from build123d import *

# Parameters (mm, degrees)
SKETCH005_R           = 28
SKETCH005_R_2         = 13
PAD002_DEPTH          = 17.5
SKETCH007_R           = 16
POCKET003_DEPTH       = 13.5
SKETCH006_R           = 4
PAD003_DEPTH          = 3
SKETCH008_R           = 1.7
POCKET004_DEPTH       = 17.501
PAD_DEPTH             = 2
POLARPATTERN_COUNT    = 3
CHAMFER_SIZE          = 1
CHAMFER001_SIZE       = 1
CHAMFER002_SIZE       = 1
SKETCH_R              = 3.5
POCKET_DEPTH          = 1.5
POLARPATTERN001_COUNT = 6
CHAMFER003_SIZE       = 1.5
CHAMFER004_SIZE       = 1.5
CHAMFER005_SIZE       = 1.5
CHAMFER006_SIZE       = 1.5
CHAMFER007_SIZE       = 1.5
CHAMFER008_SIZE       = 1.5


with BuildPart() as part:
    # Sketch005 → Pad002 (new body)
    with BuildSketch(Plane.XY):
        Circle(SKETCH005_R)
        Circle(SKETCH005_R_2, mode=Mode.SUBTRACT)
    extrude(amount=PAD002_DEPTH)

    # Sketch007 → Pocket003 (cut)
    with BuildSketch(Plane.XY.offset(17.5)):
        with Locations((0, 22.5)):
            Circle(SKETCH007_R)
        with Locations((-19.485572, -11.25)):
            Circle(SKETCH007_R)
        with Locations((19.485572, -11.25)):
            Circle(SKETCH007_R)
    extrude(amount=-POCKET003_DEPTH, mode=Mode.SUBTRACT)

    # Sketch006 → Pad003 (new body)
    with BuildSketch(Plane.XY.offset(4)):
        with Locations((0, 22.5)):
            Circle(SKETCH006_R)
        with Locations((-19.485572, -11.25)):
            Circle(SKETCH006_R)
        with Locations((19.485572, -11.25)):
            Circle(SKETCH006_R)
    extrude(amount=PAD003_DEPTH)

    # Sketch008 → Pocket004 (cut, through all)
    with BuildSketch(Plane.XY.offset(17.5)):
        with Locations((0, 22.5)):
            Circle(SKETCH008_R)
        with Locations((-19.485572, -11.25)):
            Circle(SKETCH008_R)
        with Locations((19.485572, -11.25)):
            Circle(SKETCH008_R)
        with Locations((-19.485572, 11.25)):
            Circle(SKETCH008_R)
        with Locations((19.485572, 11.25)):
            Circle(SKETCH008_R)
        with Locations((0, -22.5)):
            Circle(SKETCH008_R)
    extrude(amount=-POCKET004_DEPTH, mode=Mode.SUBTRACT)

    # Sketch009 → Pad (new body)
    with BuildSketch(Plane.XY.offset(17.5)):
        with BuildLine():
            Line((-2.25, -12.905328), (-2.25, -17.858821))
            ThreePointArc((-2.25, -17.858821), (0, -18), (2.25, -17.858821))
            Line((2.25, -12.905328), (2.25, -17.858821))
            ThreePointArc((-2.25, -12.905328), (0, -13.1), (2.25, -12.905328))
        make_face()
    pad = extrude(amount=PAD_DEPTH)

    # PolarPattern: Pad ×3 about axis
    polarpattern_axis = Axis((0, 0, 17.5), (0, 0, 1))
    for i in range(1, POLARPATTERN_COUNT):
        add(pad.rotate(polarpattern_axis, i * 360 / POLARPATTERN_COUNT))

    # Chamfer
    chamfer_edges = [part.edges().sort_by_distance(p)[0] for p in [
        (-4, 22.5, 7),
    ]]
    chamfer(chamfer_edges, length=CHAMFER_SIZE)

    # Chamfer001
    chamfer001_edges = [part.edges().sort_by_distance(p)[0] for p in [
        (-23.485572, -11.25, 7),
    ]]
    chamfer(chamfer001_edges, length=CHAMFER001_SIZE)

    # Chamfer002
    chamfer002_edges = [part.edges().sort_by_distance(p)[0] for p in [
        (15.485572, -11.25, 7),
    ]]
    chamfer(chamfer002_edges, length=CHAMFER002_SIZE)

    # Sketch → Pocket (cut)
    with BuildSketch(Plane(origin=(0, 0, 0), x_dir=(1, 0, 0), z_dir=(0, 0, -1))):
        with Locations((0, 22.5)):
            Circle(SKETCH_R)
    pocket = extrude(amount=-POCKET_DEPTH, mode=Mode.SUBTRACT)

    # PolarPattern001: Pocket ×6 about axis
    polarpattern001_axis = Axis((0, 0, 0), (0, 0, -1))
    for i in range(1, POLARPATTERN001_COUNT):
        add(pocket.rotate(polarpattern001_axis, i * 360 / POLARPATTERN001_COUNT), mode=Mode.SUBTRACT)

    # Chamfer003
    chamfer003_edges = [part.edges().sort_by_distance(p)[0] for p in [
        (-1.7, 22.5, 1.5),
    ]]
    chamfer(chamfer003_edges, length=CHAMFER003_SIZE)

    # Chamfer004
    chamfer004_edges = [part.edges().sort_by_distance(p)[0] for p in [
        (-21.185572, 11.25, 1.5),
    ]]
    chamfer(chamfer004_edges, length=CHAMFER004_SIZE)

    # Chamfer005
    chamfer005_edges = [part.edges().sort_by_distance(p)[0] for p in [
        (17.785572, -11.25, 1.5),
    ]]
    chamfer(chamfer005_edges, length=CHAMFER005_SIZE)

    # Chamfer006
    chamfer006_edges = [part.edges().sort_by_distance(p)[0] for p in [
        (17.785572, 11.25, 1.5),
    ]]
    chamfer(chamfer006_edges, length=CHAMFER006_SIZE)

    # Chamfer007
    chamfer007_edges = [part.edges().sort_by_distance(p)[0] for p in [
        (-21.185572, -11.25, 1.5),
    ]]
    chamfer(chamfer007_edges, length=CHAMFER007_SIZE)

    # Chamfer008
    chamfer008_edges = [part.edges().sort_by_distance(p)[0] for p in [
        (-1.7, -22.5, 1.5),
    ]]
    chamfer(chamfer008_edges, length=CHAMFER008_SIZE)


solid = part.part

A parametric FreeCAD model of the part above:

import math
import FreeCAD as App
import Part
import Sketcher
from FreeCAD import Vector


def edges_at(feature, points):
    """Names of the edges that pass closest to the given points."""
    edges = feature.Shape.Edges
    near = lambda p: min(range(len(edges)), key=lambda i: edges[i].distToShape(Part.Vertex(*p))[0])
    return sorted({f"Edge{near(p) + 1}" for p in points})

doc = App.newDocument("Part")
params = doc.addObject("Spreadsheet::Sheet", "Params")
for row, (alias, value) in enumerate([
    ("sketch1_diameter", "56 mm"),
    ("sketch1_diameter2", "26 mm"),
    ("pad1_length", "17.5 mm"),
    ("sketch2_diameter", "32 mm"),
    ("pocket1_length", "13.5 mm"),
    ("sketch3_diameter", "8 mm"),
    ("pad2_length", "3 mm"),
    ("sketch4_diameter", "3.4 mm"),
    ("pad3_length", "2 mm"),
    ("chamfer_size", "1 mm"),
    ("chamfer2_size", "1 mm"),
    ("chamfer3_size", "1 mm"),
    ("sketch6_diameter", "7 mm"),
    ("pocket3_length", "1.5 mm"),
    ("chamfer4_size", "1.5 mm"),
    ("chamfer5_size", "1.5 mm"),
    ("chamfer6_size", "1.5 mm"),
    ("chamfer7_size", "1.5 mm"),
    ("chamfer8_size", "1.5 mm"),
    ("chamfer9_size", "1.5 mm"),
], start=1):
    params.set(f"A{row}", alias)
    params.set(f"B{row}", "=" + value)
    params.setAlias(f"B{row}", alias)

body = doc.addObject("PartDesign::Body", "Body")

sketch1 = body.newObject("Sketcher::SketchObject", "Sketch")
sketch1.AttachmentSupport = (doc.getObject("XY_Plane"), [""])
sketch1.MapMode = "FlatFace"
sketch1.addGeometry([
    Part.Circle(Vector(0, 0, 0), Vector(0, 0, 1), 28),
    Part.Circle(Vector(0, 0, 0), Vector(0, 0, 1), 13),
], False)
sketch1.addConstraint([
    Sketcher.Constraint("Coincident", 0, 3, -1, 1),
    Sketcher.Constraint("Coincident", 1, 3, -1, 1),
    Sketcher.Constraint("Diameter", 0, 56.0),
    Sketcher.Constraint("Diameter", 1, 26.0),
])
sketch1.setExpression("Constraints[2]", "Params.sketch1_diameter")
sketch1.setExpression("Constraints[3]", "Params.sketch1_diameter2")
pad1 = body.newObject("PartDesign::Pad", "Pad")
pad1.Profile = sketch1
pad1.setExpression("Length", "Params.pad1_length")

sketch2 = body.newObject("Sketcher::SketchObject", "Sketch001")
sketch2.AttachmentSupport = (doc.getObject("XY_Plane"), [""])
sketch2.MapMode = "FlatFace"
sketch2.AttachmentOffset = App.Placement(Vector(0, 0, 17.5), App.Rotation())
sketch2.addGeometry([
    Part.Circle(Vector(0, 22, 0), Vector(0, 0, 1), 16),
    Part.Circle(Vector(-19, -11, 0), Vector(0, 0, 1), 16),
    Part.Circle(Vector(19, -11, 0), Vector(0, 0, 1), 16),
], False)
sketch2.addConstraint([
    Sketcher.Constraint("Equal", 0, 1),
    Sketcher.Constraint("Equal", 1, 2),
    Sketcher.Constraint("Symmetric", 1, 3, 2, 3, -2),
    Sketcher.Constraint("PointOnObject", 0, 3, -2),
    Sketcher.Constraint("Diameter", 0, 32.0),
    Sketcher.Constraint("DistanceY", -1, 1, 0, 3, 22.5),
    Sketcher.Constraint("DistanceY", 1, 3, -1, 1, 11.25),
    Sketcher.Constraint("DistanceX", 1, 3, -1, 1, 19.485572),
])
sketch2.setExpression("Constraints[4]", "Params.sketch2_diameter")
pocket1 = body.newObject("PartDesign::Pocket", "Pocket")
pocket1.Profile = sketch2
pocket1.setExpression("Length", "Params.pocket1_length")

sketch3 = body.newObject("Sketcher::SketchObject", "Sketch002")
sketch3.AttachmentSupport = (doc.getObject("XY_Plane"), [""])
sketch3.MapMode = "FlatFace"
sketch3.AttachmentOffset = App.Placement(Vector(0, 0, 4), App.Rotation())
sketch3.addGeometry([
    Part.Circle(Vector(0, 22.5, 0), Vector(0, 0, 1), 4),
    Part.Circle(Vector(-19.5, -11.2, 0), Vector(0, 0, 1), 4),
    Part.Circle(Vector(19.5, -11.2, 0), Vector(0, 0, 1), 4),
], False)
sketch3.addConstraint([
    Sketcher.Constraint("Equal", 0, 1),
    Sketcher.Constraint("Equal", 1, 2),
    Sketcher.Constraint("Symmetric", 1, 3, 2, 3, -2),
    Sketcher.Constraint("PointOnObject", 0, 3, -2),
    Sketcher.Constraint("Diameter", 0, 8.0),
    Sketcher.Constraint("DistanceY", -1, 1, 0, 3, 22.5),
    Sketcher.Constraint("DistanceY", 1, 3, -1, 1, 11.25),
    Sketcher.Constraint("DistanceX", 1, 3, -1, 1, 19.485572),
])
sketch3.setExpression("Constraints[4]", "Params.sketch3_diameter")
pad2 = body.newObject("PartDesign::Pad", "Pad001")
pad2.Profile = sketch3
pad2.setExpression("Length", "Params.pad2_length")

sketch4 = body.newObject("Sketcher::SketchObject", "Sketch003")
sketch4.AttachmentSupport = (doc.getObject("XY_Plane"), [""])
sketch4.MapMode = "FlatFace"
sketch4.AttachmentOffset = App.Placement(Vector(0, 0, 17.5), App.Rotation())
sketch4.addGeometry([
    Part.Circle(Vector(0, 22.5, 0), Vector(0, 0, 1), 1.7),
    Part.Circle(Vector(-19.5, -11.2, 0), Vector(0, 0, 1), 1.7),
    Part.Circle(Vector(19.5, -11.2, 0), Vector(0, 0, 1), 1.7),
    Part.Circle(Vector(-19.5, 11.2, 0), Vector(0, 0, 1), 1.7),
    Part.Circle(Vector(19.5, 11.2, 0), Vector(0, 0, 1), 1.7),
    Part.Circle(Vector(0, -22.5, 0), Vector(0, 0, 1), 1.7),
], False)
sketch4.addConstraint([
    Sketcher.Constraint("Equal", 0, 1),
    Sketcher.Constraint("Equal", 1, 2),
    Sketcher.Constraint("Equal", 2, 3),
    Sketcher.Constraint("Equal", 3, 4),
    Sketcher.Constraint("Equal", 4, 5),
    Sketcher.Constraint("Symmetric", 2, 3, 3, 3, -1, 1),
    Sketcher.Constraint("Symmetric", 1, 3, 4, 3, -1, 1),
    Sketcher.Constraint("Symmetric", 0, 3, 5, 3, -1, 1),
    Sketcher.Constraint("Symmetric", 1, 3, 2, 3, -2),
    Sketcher.Constraint("PointOnObject", 0, 3, -2),
    Sketcher.Constraint("Diameter", 0, 3.4),
    Sketcher.Constraint("DistanceY", 5, 3, 0, 3, 45.0),
    Sketcher.Constraint("DistanceY", 1, 3, 3, 3, 22.5),
    Sketcher.Constraint("DistanceX", 1, 3, -1, 1, 19.485572),
])
sketch4.setExpression("Constraints[10]", "Params.sketch4_diameter")
pocket2 = body.newObject("PartDesign::Pocket", "Pocket001")
pocket2.Profile = sketch4
pocket2.Type = "ThroughAll"

sketch5 = body.newObject("Sketcher::SketchObject", "Sketch004")
sketch5.AttachmentSupport = (doc.getObject("XY_Plane"), [""])
sketch5.MapMode = "FlatFace"
sketch5.AttachmentOffset = App.Placement(Vector(0, 0, 17.5), App.Rotation())
sketch5.addGeometry([
    Part.LineSegment(Vector(-2.2, -12.9, 0), Vector(-2.2, -17.9, 0)),
    Part.ArcOfCircle(Part.Circle(Vector(0, 0, 0), Vector(0, 0, 1), 18), math.radians(-97.18), math.radians(-82.82)),
    Part.LineSegment(Vector(2.2, -17.9, 0), Vector(2.2, -12.9, 0)),
    Part.ArcOfCircle(Part.Circle(Vector(0, 0, 0), Vector(0, 0, 1), 13.1), math.radians(-99.89), math.radians(-80.11)),
], False)
sketch5.addConstraint([
    Sketcher.Constraint("Coincident", 0, 2, 1, 1),
    Sketcher.Constraint("Coincident", 1, 2, 2, 1),
    Sketcher.Constraint("Coincident", 2, 2, 3, 2),
    Sketcher.Constraint("Coincident", 3, 1, 0, 1),
    Sketcher.Constraint("Vertical", 0),
    Sketcher.Constraint("Vertical", 2),
    Sketcher.Constraint("Symmetric", 0, 2, 1, 2, -2),
    Sketcher.Constraint("PointOnObject", 3, 3, -2),
    Sketcher.Constraint("DistanceX", 0, 2, 1, 2, 4.5),
    Sketcher.Constraint("Radius", 1, 17.999956),
    Sketcher.Constraint("Radius", 3, 13.099976),
    Sketcher.Constraint("DistanceY", 0, 2, 0, 1, 4.953493),
    Sketcher.Constraint("DistanceY", 0, 2, -1, 1, 17.858821),
])
pad3 = body.newObject("PartDesign::Pad", "Pad002")
pad3.Profile = sketch5
pad3.setExpression("Length", "Params.pad3_length")
doc.recompute()

polarpattern = body.newObject("PartDesign::PolarPattern", "PolarPattern")
polarpattern.Originals = [pad3]
polarpattern.Axis = (doc.getObject("Z_Axis"), [""])
polarpattern.Angle = 360
polarpattern.Occurrences = 3
body.Tip = polarpattern
doc.recompute()

chamfer = body.newObject("PartDesign::Chamfer", "Chamfer")
chamfer.Base = (polarpattern, edges_at(polarpattern, [(-4, 22.5, 7)]))
chamfer.setExpression("Size", "Params.chamfer_size")
doc.recompute()

chamfer2 = body.newObject("PartDesign::Chamfer", "Chamfer001")
chamfer2.Base = (chamfer, edges_at(chamfer, [(-23.486, -11.25, 7)]))
chamfer2.setExpression("Size", "Params.chamfer2_size")
doc.recompute()

chamfer3 = body.newObject("PartDesign::Chamfer", "Chamfer002")
chamfer3.Base = (chamfer2, edges_at(chamfer2, [(15.486, -11.25, 7)]))
chamfer3.setExpression("Size", "Params.chamfer3_size")

sketch6 = body.newObject("Sketcher::SketchObject", "Sketch005")
sketch6.AttachmentSupport = (doc.getObject("XY_Plane"), [""])
sketch6.MapMode = "FlatFace"
sketch6.addGeometry(Part.Circle(Vector(0, -22.5, 0), Vector(0, 0, 1), 3.5), False)
sketch6.addConstraint([
    Sketcher.Constraint("PointOnObject", 0, 3, -2),
    Sketcher.Constraint("Diameter", 0, 7.0),
    Sketcher.Constraint("DistanceY", 0, 3, -1, 1, 22.5),
])
sketch6.setExpression("Constraints[1]", "Params.sketch6_diameter")
pocket3 = body.newObject("PartDesign::Pocket", "Pocket002")
pocket3.Profile = sketch6
pocket3.setExpression("Length", "Params.pocket3_length")
pocket3.Reversed = True
doc.recompute()

polarpattern2 = body.newObject("PartDesign::PolarPattern", "PolarPattern001")
polarpattern2.Originals = [pocket3]
polarpattern2.Axis = (doc.getObject("Z_Axis"), [""])
polarpattern2.Angle = 360
polarpattern2.Occurrences = 6
body.Tip = polarpattern2
doc.recompute()

chamfer4 = body.newObject("PartDesign::Chamfer", "Chamfer003")
chamfer4.Base = (polarpattern2, edges_at(polarpattern2, [(-1.7, 22.5, 1.5)]))
chamfer4.setExpression("Size", "Params.chamfer4_size")
doc.recompute()

chamfer5 = body.newObject("PartDesign::Chamfer", "Chamfer004")
chamfer5.Base = (chamfer4, edges_at(chamfer4, [(-21.186, 11.25, 1.5)]))
chamfer5.setExpression("Size", "Params.chamfer5_size")
doc.recompute()

chamfer6 = body.newObject("PartDesign::Chamfer", "Chamfer005")
chamfer6.Base = (chamfer5, edges_at(chamfer5, [(17.786, -11.25, 1.5)]))
chamfer6.setExpression("Size", "Params.chamfer6_size")
doc.recompute()

chamfer7 = body.newObject("PartDesign::Chamfer", "Chamfer006")
chamfer7.Base = (chamfer6, edges_at(chamfer6, [(17.786, 11.25, 1.5)]))
chamfer7.setExpression("Size", "Params.chamfer7_size")
doc.recompute()

chamfer8 = body.newObject("PartDesign::Chamfer", "Chamfer007")
chamfer8.Base = (chamfer7, edges_at(chamfer7, [(-21.186, -11.25, 1.5)]))
chamfer8.setExpression("Size", "Params.chamfer8_size")
doc.recompute()

chamfer9 = body.newObject("PartDesign::Chamfer", "Chamfer008")
chamfer9.Base = (chamfer8, edges_at(chamfer8, [(-1.7, -22.5, 1.5)]))
chamfer9.setExpression("Size", "Params.chamfer9_size")

doc.recompute()
